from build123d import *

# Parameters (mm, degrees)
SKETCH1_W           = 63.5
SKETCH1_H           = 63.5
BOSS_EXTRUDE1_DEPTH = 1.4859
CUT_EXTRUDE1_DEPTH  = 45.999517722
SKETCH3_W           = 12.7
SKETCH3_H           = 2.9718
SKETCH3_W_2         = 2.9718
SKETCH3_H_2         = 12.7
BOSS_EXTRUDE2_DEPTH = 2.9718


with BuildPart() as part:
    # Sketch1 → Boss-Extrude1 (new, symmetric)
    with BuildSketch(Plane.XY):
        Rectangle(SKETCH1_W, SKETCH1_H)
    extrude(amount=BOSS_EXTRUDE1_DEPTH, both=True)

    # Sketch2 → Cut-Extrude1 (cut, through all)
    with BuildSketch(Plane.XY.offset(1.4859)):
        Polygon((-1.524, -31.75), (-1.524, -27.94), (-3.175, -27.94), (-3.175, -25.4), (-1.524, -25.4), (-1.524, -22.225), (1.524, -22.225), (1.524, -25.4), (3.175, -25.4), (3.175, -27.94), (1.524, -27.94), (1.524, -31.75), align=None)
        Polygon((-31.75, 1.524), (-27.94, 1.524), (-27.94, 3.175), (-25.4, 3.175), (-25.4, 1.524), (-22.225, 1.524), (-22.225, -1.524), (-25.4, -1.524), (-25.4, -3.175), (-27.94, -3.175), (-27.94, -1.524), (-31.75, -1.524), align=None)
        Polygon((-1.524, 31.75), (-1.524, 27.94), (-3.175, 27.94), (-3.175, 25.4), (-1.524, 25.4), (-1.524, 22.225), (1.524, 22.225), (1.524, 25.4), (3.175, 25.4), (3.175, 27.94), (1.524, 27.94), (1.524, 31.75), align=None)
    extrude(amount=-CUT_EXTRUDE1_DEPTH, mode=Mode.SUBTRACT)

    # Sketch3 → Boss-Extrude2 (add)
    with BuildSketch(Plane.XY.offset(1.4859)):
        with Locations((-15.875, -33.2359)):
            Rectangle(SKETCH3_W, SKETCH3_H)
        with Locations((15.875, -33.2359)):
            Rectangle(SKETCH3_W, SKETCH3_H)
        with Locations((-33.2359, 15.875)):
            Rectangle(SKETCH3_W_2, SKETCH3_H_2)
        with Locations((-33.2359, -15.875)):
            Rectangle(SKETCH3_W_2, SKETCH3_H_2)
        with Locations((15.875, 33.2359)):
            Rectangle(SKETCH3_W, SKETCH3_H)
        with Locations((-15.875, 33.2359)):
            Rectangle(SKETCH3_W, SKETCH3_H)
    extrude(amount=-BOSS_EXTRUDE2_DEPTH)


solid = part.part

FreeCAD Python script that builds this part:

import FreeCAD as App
import Part
import Sketcher

V = App.Vector
Q = App.Units.Quantity

doc = App.newDocument("Part")
body = doc.addObject("PartDesign::Body", "Body")

# Sketch on XY plane
sketch1 = body.newObject("Sketcher::SketchObject", "Sketch")
sketch1.AttachmentSupport = (doc.getObject("XY_Plane"), [""])
sketch1.MapMode = "FlatFace"
sketch1.addGeometry(Part.LineSegment(V(-32, 32, 0), V(-32, -32, 0)), False)
sketch1.addGeometry(Part.LineSegment(V(-32, -32, 0), V(32, -32, 0)), False)
sketch1.addGeometry(Part.LineSegment(V(32, -32, 0), V(32, 32, 0)), False)
sketch1.addGeometry(Part.LineSegment(V(32, 32, 0), V(-32, 32, 0)), False)
sketch1.addConstraint(Sketcher.Constraint("Coincident", 0, 2, 1, 1))
sketch1.addConstraint(Sketcher.Constraint("Coincident", 1, 2, 2, 1))
sketch1.addConstraint(Sketcher.Constraint("Coincident", 2, 2, 3, 1))
sketch1.addConstraint(Sketcher.Constraint("Coincident", 3, 2, 0, 1))
sketch1.addConstraint(Sketcher.Constraint("Vertical", 0))
sketch1.addConstraint(Sketcher.Constraint("Horizontal", 1))
sketch1.addConstraint(Sketcher.Constraint("Vertical", 2))
sketch1.addConstraint(Sketcher.Constraint("Horizontal", 3))
sketch1.addConstraint(Sketcher.Constraint("Symmetric", 0, 2, 2, 2, -1, 1))
sketch1.addConstraint(Sketcher.Constraint("Equal", 3, 0))
sketch1.addConstraint(Sketcher.Constraint("DistanceX", 1, 1, 1, 2, Q("2.5 in")))
pad1 = body.newObject("PartDesign::Pad", "Pad")
pad1.Profile = sketch1
pad1.Length = Q("0.117 in")
pad1.Midplane = True

# Sketch on XY plane
sketch2 = body.newObject("Sketcher::SketchObject", "Sketch001")
sketch2.AttachmentSupport = (doc.getObject("XY_Plane"), [""])
sketch2.MapMode = "FlatFace"
sketch2.AttachmentOffset = App.Placement(V(0, 0, 0.0585 * 25.4), App.Rotation())
sketch2.addGeometry(Part.LineSegment(V(-1.5, -27.9, 0), V(-1.5, -31.8, 0)), False)
sketch2.addGeometry(Part.LineSegment(V(-1.5, -31.8, 0), V(1.5, -31.8, 0)), False)
sketch2.addGeometry(Part.LineSegment(V(1.5, -31.8, 0), V(1.5, -27.9, 0)), False)
sketch2.addGeometry(Part.LineSegment(V(1.5, -27.9, 0), V(3.2, -27.9, 0)), False)
sketch2.addGeometry(Part.LineSegment(V(3.2, -27.9, 0), V(3.2, -25.4, 0)), False)
sketch2.addGeometry(Part.LineSegment(V(3.2, -25.4, 0), V(1.5, -25.4, 0)), False)
sketch2.addGeometry(Part.LineSegment(V(1.5, -25.4, 0), V(1.5, -22.2, 0)), False)
sketch2.addGeometry(Part.LineSegment(V(1.5, -22.2, 0), V(-1.5, -22.2, 0)), False)
sketch2.addGeometry(Part.LineSegment(V(-1.5, -22.2, 0), V(-1.5, -25.4, 0)), False)
sketch2.addGeometry(Part.LineSegment(V(-1.5, -25.4, 0), V(-3.2, -25.4, 0)), False)
sketch2.addGeometry(Part.LineSegment(V(-3.2, -25.4, 0), V(-3.2, -27.9, 0)), False)
sketch2.addGeometry(Part.LineSegment(V(-3.2, -27.9, 0), V(-1.5, -27.9, 0)), False)
sketch2.addGeometry(Part.LineSegment(V(-27.9, 1.5, 0), V(-31.8, 1.5, 0)), False)
sketch2.addGeometry(Part.LineSegment(V(-31.8, 1.5, 0), V(-31.8, -1.5, 0)), False)
sketch2.addGeometry(Part.LineSegment(V(-31.8, -1.5, 0), V(-27.9, -1.5, 0)), False)
sketch2.addGeometry(Part.LineSegment(V(-27.9, -1.5, 0), V(-27.9, -3.2, 0)), False)
sketch2.addGeometry(Part.LineSegment(V(-27.9, -3.2, 0), V(-25.4, -3.2, 0)), False)
sketch2.addGeometry(Part.LineSegment(V(-25.4, -3.2, 0), V(-25.4, -1.5, 0)), False)
sketch2.addGeometry(Part.LineSegment(V(-25.4, -1.5, 0), V(-22.2, -1.5, 0)), False)
sketch2.addGeometry(Part.LineSegment(V(-22.2, -1.5, 0), V(-22.2, 1.5, 0)), False)
sketch2.addGeometry(Part.LineSegment(V(-22.2, 1.5, 0), V(-25.4, 1.5, 0)), False)
sketch2.addGeometry(Part.LineSegment(V(-25.4, 1.5, 0), V(-25.4, 3.2, 0)), False)
sketch2.addGeometry(Part.LineSegment(V(-25.4, 3.2, 0), V(-27.9, 3.2, 0)), False)
sketch2.addGeometry(Part.LineSegment(V(-27.9, 3.2, 0), V(-27.9, 1.5, 0)), False)
sketch2.addGeometry(Part.LineSegment(V(-1.5, 31.8, 0), V(-1.5, 27.9, 0)), False)
sketch2.addGeometry(Part.LineSegment(V(-1.5, 27.9, 0), V(-3.2, 27.9, 0)), False)
sketch2.addGeometry(Part.LineSegment(V(-3.2, 27.9, 0), V(-3.2, 25.4, 0)), False)
sketch2.addGeometry(Part.LineSegment(V(-3.2, 25.4, 0), V(-1.5, 25.4, 0)), False)
sketch2.addGeometry(Part.LineSegment(V(-1.5, 25.4, 0), V(-1.5, 22.2, 0)), False)
sketch2.addGeometry(Part.LineSegment(V(-1.5, 22.2, 0), V(1.5, 22.2, 0)), False)
sketch2.addGeometry(Part.LineSegment(V(1.5, 22.2, 0), V(1.5, 25.4, 0)), False)
sketch2.addGeometry(Part.LineSegment(V(1.5, 25.4, 0), V(3.2, 25.4, 0)), False)
sketch2.addGeometry(Part.LineSegment(V(3.2, 25.4, 0), V(3.2, 27.9, 0)), False)
sketch2.addGeometry(Part.LineSegment(V(3.2, 27.9, 0), V(1.5, 27.9, 0)), False)
sketch2.addGeometry(Part.LineSegment(V(1.5, 27.9, 0), V(1.5, 31.8, 0)), False)
sketch2.addGeometry(Part.LineSegment(V(1.5, 31.8, 0), V(-1.5, 31.8, 0)), False)
sketch2.addConstraint(Sketcher.Constraint("Coincident", 0, 2, 1, 1))
sketch2.addConstraint(Sketcher.Constraint("Coincident", 1, 2, 2, 1))
sketch2.addConstraint(Sketcher.Constraint("Coincident", 2, 2, 3, 1))
sketch2.addConstraint(Sketcher.Constraint("Coincident", 3, 2, 4, 1))
sketch2.addConstraint(Sketcher.Constraint("Coincident", 4, 2, 5, 1))
sketch2.addConstraint(Sketcher.Constraint("Coincident", 5, 2, 6, 1))
sketch2.addConstraint(Sketcher.Constraint("Coincident", 6, 2, 7, 1))
sketch2.addConstraint(Sketcher.Constraint("Coincident", 7, 2, 8, 1))
sketch2.addConstraint(Sketcher.Constraint("Coincident", 8, 2, 9, 1))
sketch2.addConstraint(Sketcher.Constraint("Coincident", 9, 2, 10, 1))
sketch2.addConstraint(Sketcher.Constraint("Coincident", 10, 2, 11, 1))
sketch2.addConstraint(Sketcher.Constraint("Coincident", 11, 2, 0, 1))
sketch2.addConstraint(Sketcher.Constraint("Coincident", 12, 2, 13, 1))
sketch2.addConstraint(Sketcher.Constraint("Coincident", 13, 2, 14, 1))
sketch2.addConstraint(Sketcher.Constraint("Coincident", 14, 2, 15, 1))
sketch2.addConstraint(Sketcher.Constraint("Coincident", 15, 2, 16, 1))
sketch2.addConstraint(Sketcher.Constraint("Coincident", 16, 2, 17, 1))
sketch2.addConstraint(Sketcher.Constraint("Coincident", 17, 2, 18, 1))
sketch2.addConstraint(Sketcher.Constraint("Coincident", 18, 2, 19, 1))
sketch2.addConstraint(Sketcher.Constraint("Coincident", 19, 2, 20, 1))
sketch2.addConstraint(Sketcher.Constraint("Coincident", 20, 2, 21, 1))
sketch2.addConstraint(Sketcher.Constraint("Coincident", 21, 2, 22, 1))
sketch2.addConstraint(Sketcher.Constraint("Coincident", 22, 2, 23, 1))
sketch2.addConstraint(Sketcher.Constraint("Coincident", 23, 2, 12, 1))
sketch2.addConstraint(Sketcher.Constraint("Coincident", 24, 2, 25, 1))
sketch2.addConstraint(Sketcher.Constraint("Coincident", 25, 2, 26, 1))
sketch2.addConstraint(Sketcher.Constraint("Coincident", 26, 2, 27, 1))
sketch2.addConstraint(Sketcher.Constraint("Coincident", 27, 2, 28, 1))
sketch2.addConstraint(Sketcher.Constraint("Coincident", 28, 2, 29, 1))
sketch2.addConstraint(Sketcher.Constraint("Coincident", 29, 2, 30, 1))
sketch2.addConstraint(Sketcher.Constraint("Coincident", 30, 2, 31, 1))
sketch2.addConstraint(Sketcher.Constraint("Coincident", 31, 2, 32, 1))
sketch2.addConstraint(Sketcher.Constraint("Coincident", 32, 2, 33, 1))
sketch2.addConstraint(Sketcher.Constraint("Coincident", 33, 2, 34, 1))
sketch2.addConstraint(Sketcher.Constraint("Coincident", 34, 2, 35, 1))
sketch2.addConstraint(Sketcher.Constraint("Coincident", 35, 2, 24, 1))
sketch2.addConstraint(Sketcher.Constraint("Vertical", 0))
sketch2.addConstraint(Sketcher.Constraint("Horizontal", 1))
sketch2.addConstraint(Sketcher.Constraint("Vertical", 2))
sketch2.addConstraint(Sketcher.Constraint("Horizontal", 3))
sketch2.addConstraint(Sketcher.Constraint("Vertical", 4))
sketch2.addConstraint(Sketcher.Constraint("Horizontal", 5))
sketch2.addConstraint(Sketcher.Constraint("Vertical", 6))
sketch2.addConstraint(Sketcher.Constraint("Horizontal", 7))
sketch2.addConstraint(Sketcher.Constraint("Vertical", 8))
sketch2.addConstraint(Sketcher.Constraint("Horizontal", 9))
sketch2.addConstraint(Sketcher.Constraint("Vertical", 10))
sketch2.addConstraint(Sketcher.Constraint("Horizontal", 11))
sketch2.addConstraint(Sketcher.Constraint("Horizontal", 12))
sketch2.addConstraint(Sketcher.Constraint("Vertical", 13))
sketch2.addConstraint(Sketcher.Constraint("Horizontal", 14))
sketch2.addConstraint(Sketcher.Constraint("Vertical", 15))
sketch2.addConstraint(Sketcher.Constraint("Horizontal", 16))
sketch2.addConstraint(Sketcher.Constraint("Vertical", 17))
sketch2.addConstraint(Sketcher.Constraint("Horizontal", 18))
sketch2.addConstraint(Sketcher.Constraint("Vertical", 19))
sketch2.addConstraint(Sketcher.Constraint("Horizontal", 20))
sketch2.addConstraint(Sketcher.Constraint("Vertical", 21))
sketch2.addConstraint(Sketcher.Constraint("Horizontal", 22))
sketch2.addConstraint(Sketcher.Constraint("Vertical", 23))
sketch2.addConstraint(Sketcher.Constraint("Vertical", 24))
sketch2.addConstraint(Sketcher.Constraint("Horizontal", 25))
sketch2.addConstraint(Sketcher.Constraint("Vertical", 26))
sketch2.addConstraint(Sketcher.Constraint("Horizontal", 27))
sketch2.addConstraint(Sketcher.Constraint("Vertical", 28))
sketch2.addConstraint(Sketcher.Constraint("Horizontal", 29))
sketch2.addConstraint(Sketcher.Constraint("Vertical", 30))
sketch2.addConstraint(Sketcher.Constraint("Horizontal", 31))
sketch2.addConstraint(Sketcher.Constraint("Vertical", 32))
sketch2.addConstraint(Sketcher.Constraint("Horizontal", 33))
sketch2.addConstraint(Sketcher.Constraint("Vertical", 34))
sketch2.addConstraint(Sketcher.Constraint("Horizontal", 35))
sketch2.addConstraint(Sketcher.Constraint("Symmetric", 2, 2, 24, 2, -1, 1))
sketch2.addConstraint(Sketcher.Constraint("Symmetric", 4, 2, 26, 2, -1, 1))
sketch2.addConstraint(Sketcher.Constraint("Symmetric", 6, 2, 28, 2, -1, 1))
sketch2.addConstraint(Sketcher.Constraint("Symmetric", 8, 2, 30, 2, -1, 1))
sketch2.addConstraint(Sketcher.Constraint("Symmetric", 10, 2, 32, 2, -1, 1))
sketch2.addConstraint(Sketcher.Constraint("Symmetric", 0, 2, 34, 2, -1, 1))
sketch2.addConstraint(Sketcher.Constraint("Symmetric", 5, 2, 8, 2, -2))
sketch2.addConstraint(Sketcher.Constraint("Symmetric", 3, 2, 10, 2, -2))
sketch2.addConstraint(Sketcher.Constraint("Symmetric", 17, 2, 20, 2, -1))
sketch2.addConstraint(Sketcher.Constraint("Symmetric", 15, 2, 22, 2, -1))
sketch2.addConstraint(Sketcher.Constraint("Horizontal", 14, 2, 17, 2))
sketch2.addConstraint(Sketcher.Constraint("Horizontal", 12, 2, 19, 2))
sketch2.addConstraint(Sketcher.Constraint("Vertical", 2, 2, 5, 2))
sketch2.addConstraint(Sketcher.Constraint("Vertical", 0, 2, 7, 2))
sketch2.addConstraint(Sketcher.Constraint("Equal", 14, 0))
sketch2.addConstraint(Sketcher.Constraint("Equal", 22, 4))
sketch2.addConstraint(Sketcher.Constraint("Equal", 20, 6))
sketch2.addConstraint(Sketcher.Constraint("Equal", 35, 13))
sketch2.addConstraint(Sketcher.Constraint("Equal", 33, 15))
sketch2.addConstraint(Sketcher.Constraint("DistanceX", 16, 1, 16, 2, Q("0.1 in")))
sketch2.addConstraint(Sketcher.Constraint("DistanceY", 4, 2, -1, 1, Q("1 in")))
sketch2.addConstraint(Sketcher.Constraint("DistanceX", 16, 2, -1, 1, Q("1 in")))
sketch2.addConstraint(Sketcher.Constraint("DistanceX", 1, 1, 1, 2, Q("0.12 in")))
sketch2.addConstraint(Sketcher.Constraint("DistanceX", 12, 2, 12, 1, Q("0.15 in")))
sketch2.addConstraint(Sketcher.Constraint("DistanceX", 3, 1, 3, 2, Q("0.065 in")))
sketch2.addConstraint(Sketcher.Constraint("DistanceX", 18, 1, 18, 2, Q("0.125 in")))
pocket1 = body.newObject("PartDesign::Pocket", "Pocket")
pocket1.Profile = sketch2
pocket1.Type = "ThroughAll"

# Sketch on XY plane
sketch3 = body.newObject("Sketcher::SketchObject", "Sketch002")
sketch3.AttachmentSupport = (doc.getObject("XY_Plane"), [""])
sketch3.MapMode = "FlatFace"
sketch3.AttachmentOffset = App.Placement(V(0, 0, 0.0585 * 25.4), App.Rotation())
sketch3.addGeometry(Part.LineSegment(V(-22.2, -31.8, 0), V(-22.2, -34.7, 0)), False)
sketch3.addGeometry(Part.LineSegment(V(-22.2, -34.7, 0), V(-9.5, -34.7, 0)), False)
sketch3.addGeometry(Part.LineSegment(V(-9.5, -34.7, 0), V(-9.5, -31.8, 0)), False)
sketch3.addGeometry(Part.LineSegment(V(-9.5, -31.8, 0), V(-22.2, -31.8, 0)), False)
sketch3.addGeometry(Part.LineSegment(V(9.5, -31.8, 0), V(9.5, -34.7, 0)), False)
sketch3.addGeometry(Part.LineSegment(V(9.5, -34.7, 0), V(22.2, -34.7, 0)), False)
sketch3.addGeometry(Part.LineSegment(V(22.2, -34.7, 0), V(22.2, -31.8, 0)), False)
sketch3.addGeometry(Part.LineSegment(V(22.2, -31.8, 0), V(9.5, -31.8, 0)), False)
sketch3.addGeometry(Part.LineSegment(V(-34.7, 22.2, 0), V(-34.7, 9.5, 0)), False)
sketch3.addGeometry(Part.LineSegment(V(-34.7, 9.5, 0), V(-31.8, 9.5, 0)), False)
sketch3.addGeometry(Part.LineSegment(V(-31.8, 9.5, 0), V(-31.8, 22.2, 0)), False)
sketch3.addGeometry(Part.LineSegment(V(-31.8, 22.2, 0), V(-34.7, 22.2, 0)), False)
sketch3.addGeometry(Part.LineSegment(V(-34.7, -9.5, 0), V(-34.7, -22.2, 0)), False)
sketch3.addGeometry(Part.LineSegment(V(-34.7, -22.2, 0), V(-31.8, -22.2, 0)), False)
sketch3.addGeometry(Part.LineSegment(V(-31.8, -22.2, 0), V(-31.8, -9.5, 0)), False)
sketch3.addGeometry(Part.LineSegment(V(-31.8, -9.5, 0), V(-34.7, -9.5, 0)), False)
sketch3.addGeometry(Part.LineSegment(V(9.5, 34.7, 0), V(9.5, 31.8, 0)), False)
sketch3.addGeometry(Part.LineSegment(V(9.5, 31.8, 0), V(22.2, 31.8, 0)), False)
sketch3.addGeometry(Part.LineSegment(V(22.2, 31.8, 0), V(22.2, 34.7, 0)), False)
sketch3.addGeometry(Part.LineSegment(V(22.2, 34.7, 0), V(9.5, 34.7, 0)), False)
sketch3.addGeometry(Part.LineSegment(V(-22.2, 34.7, 0), V(-22.2, 31.8, 0)), False)
sketch3.addGeometry(Part.LineSegment(V(-22.2, 31.8, 0), V(-9.5, 31.8, 0)), False)
sketch3.addGeometry(Part.LineSegment(V(-9.5, 31.8, 0), V(-9.5, 34.7, 0)), False)
sketch3.addGeometry(Part.LineSegment(V(-9.5, 34.7, 0), V(-22.2, 34.7, 0)), False)
sketch3.addConstraint(Sketcher.Constraint("Coincident", 0, 2, 1, 1))
sketch3.addConstraint(Sketcher.Constraint("Coincident", 1, 2, 2, 1))
sketch3.addConstraint(Sketcher.Constraint("Coincident", 2, 2, 3, 1))
sketch3.addConstraint(Sketcher.Constraint("Coincident", 3, 2, 0, 1))
sketch3.addConstraint(Sketcher.Constraint("Coincident", 4, 2, 5, 1))
sketch3.addConstraint(Sketcher.Constraint("Coincident", 5, 2, 6, 1))
sketch3.addConstraint(Sketcher.Constraint("Coincident", 6, 2, 7, 1))
sketch3.addConstraint(Sketcher.Constraint("Coincident", 7, 2, 4, 1))
sketch3.addConstraint(Sketcher.Constraint("Coincident", 8, 2, 9, 1))
sketch3.addConstraint(Sketcher.Constraint("Coincident", 9, 2, 10, 1))
sketch3.addConstraint(Sketcher.Constraint("Coincident", 10, 2, 11, 1))
sketch3.addConstraint(Sketcher.Constraint("Coincident", 11, 2, 8, 1))
sketch3.addConstraint(Sketcher.Constraint("Coincident", 12, 2, 13, 1))
sketch3.addConstraint(Sketcher.Constraint("Coincident", 13, 2, 14, 1))
sketch3.addConstraint(Sketcher.Constraint("Coincident", 14, 2, 15, 1))
sketch3.addConstraint(Sketcher.Constraint("Coincident", 15, 2, 12, 1))
sketch3.addConstraint(Sketcher.Constraint("Coincident", 16, 2, 17, 1))
sketch3.addConstraint(Sketcher.Constraint("Coincident", 17, 2, 18, 1))
sketch3.addConstraint(Sketcher.Constraint("Coincident", 18, 2, 19, 1))
sketch3.addConstraint(Sketcher.Constraint("Coincident", 19, 2, 16, 1))
sketch3.addConstraint(Sketcher.Constraint("Coincident", 20, 2, 21, 1))
sketch3.addConstraint(Sketcher.Constraint("Coincident", 21, 2, 22, 1))
sketch3.addConstraint(Sketcher.Constraint("Coincident", 22, 2, 23, 1))
sketch3.addConstraint(Sketcher.Constraint("Coincident", 23, 2, 20, 1))
sketch3.addConstraint(Sketcher.Constraint("Vertical", 0))
sketch3.addConstraint(Sketcher.Constraint("Horizontal", 1))
sketch3.addConstraint(Sketcher.Constraint("Vertical", 2))
sketch3.addConstraint(Sketcher.Constraint("Horizontal", 3))
sketch3.addConstraint(Sketcher.Constraint("Vertical", 4))
sketch3.addConstraint(Sketcher.Constraint("Horizontal", 5))
sketch3.addConstraint(Sketcher.Constraint("Vertical", 6))
sketch3.addConstraint(Sketcher.Constraint("Horizontal", 7))
sketch3.addConstraint(Sketcher.Constraint("Vertical", 8))
sketch3.addConstraint(Sketcher.Constraint("Horizontal", 9))
sketch3.addConstraint(Sketcher.Constraint("Vertical", 10))
sketch3.addConstraint(Sketcher.Constraint("Horizontal", 11))
sketch3.addConstraint(Sketcher.Constraint("Vertical", 12))
sketch3.addConstraint(Sketcher.Constraint("Horizontal", 13))
sketch3.addConstraint(Sketcher.Constraint("Vertical", 14))
sketch3.addConstraint(Sketcher.Constraint("Horizontal", 15))
sketch3.addConstraint(Sketcher.Constraint("Vertical", 16))
sketch3.addConstraint(Sketcher.Constraint("Horizontal", 17))
sketch3.addConstraint(Sketcher.Constraint("Vertical", 18))
sketch3.addConstraint(Sketcher.Constraint("Horizontal", 19))
sketch3.addConstraint(Sketcher.Constraint("Vertical", 20))
sketch3.addConstraint(Sketcher.Constraint("Horizontal", 21))
sketch3.addConstraint(Sketcher.Constraint("Vertical", 22))
sketch3.addConstraint(Sketcher.Constraint("Horizontal", 23))
sketch3.addConstraint(Sketcher.Constraint("Symmetric", 2, 2, 16, 2, -1, 1))
sketch3.addConstraint(Sketcher.Constraint("Symmetric", 0, 2, 18, 2, -1, 1))
sketch3.addConstraint(Sketcher.Constraint("Symmetric", 6, 2, 20, 2, -1, 1))
sketch3.addConstraint(Sketcher.Constraint("Symmetric", 4, 2, 22, 2, -1, 1))
sketch3.addConstraint(Sketcher.Constraint("Symmetric", 1, 2, 4, 2, -2))
sketch3.addConstraint(Sketcher.Constraint("Symmetric", 3, 2, 6, 2, -2))
sketch3.addConstraint(Sketcher.Constraint("Symmetric", 11, 2, 12, 2, -1))
sketch3.addConstraint(Sketcher.Constraint("Symmetric", 9, 2, 14, 2, -1))
sketch3.addConstraint(Sketcher.Constraint("Equal", 15, 0))
sketch3.addConstraint(Sketcher.Constraint("Equal", 23, 8))
sketch3.addConstraint(Sketcher.Constraint("DistanceX", 1, 1, 1, 2, Q("0.5 in")))
sketch3.addConstraint(Sketcher.Constraint("DistanceX", 9, 1, 9, 2, Q("0.117 in")))
sketch3.addConstraint(Sketcher.Constraint("DistanceY", 2, 2, -1, 1, Q("1.25 in")))
sketch3.addConstraint(Sketcher.Constraint("DistanceX", 9, 2, -1, 1, Q("1.25 in")))
sketch3.addConstraint(Sketcher.Constraint("DistanceX", 1, 2, 4, 2, Q("0.75 in")))
sketch3.addConstraint(Sketcher.Constraint("DistanceY", 12, 2, 8, 2, Q("1.25 in")))
pad2 = body.newObject("PartDesign::Pad", "Pad001")
pad2.Profile = sketch3
pad2.Length = Q("0.117 in")
pad2.Reversed = True

doc.recompute()
